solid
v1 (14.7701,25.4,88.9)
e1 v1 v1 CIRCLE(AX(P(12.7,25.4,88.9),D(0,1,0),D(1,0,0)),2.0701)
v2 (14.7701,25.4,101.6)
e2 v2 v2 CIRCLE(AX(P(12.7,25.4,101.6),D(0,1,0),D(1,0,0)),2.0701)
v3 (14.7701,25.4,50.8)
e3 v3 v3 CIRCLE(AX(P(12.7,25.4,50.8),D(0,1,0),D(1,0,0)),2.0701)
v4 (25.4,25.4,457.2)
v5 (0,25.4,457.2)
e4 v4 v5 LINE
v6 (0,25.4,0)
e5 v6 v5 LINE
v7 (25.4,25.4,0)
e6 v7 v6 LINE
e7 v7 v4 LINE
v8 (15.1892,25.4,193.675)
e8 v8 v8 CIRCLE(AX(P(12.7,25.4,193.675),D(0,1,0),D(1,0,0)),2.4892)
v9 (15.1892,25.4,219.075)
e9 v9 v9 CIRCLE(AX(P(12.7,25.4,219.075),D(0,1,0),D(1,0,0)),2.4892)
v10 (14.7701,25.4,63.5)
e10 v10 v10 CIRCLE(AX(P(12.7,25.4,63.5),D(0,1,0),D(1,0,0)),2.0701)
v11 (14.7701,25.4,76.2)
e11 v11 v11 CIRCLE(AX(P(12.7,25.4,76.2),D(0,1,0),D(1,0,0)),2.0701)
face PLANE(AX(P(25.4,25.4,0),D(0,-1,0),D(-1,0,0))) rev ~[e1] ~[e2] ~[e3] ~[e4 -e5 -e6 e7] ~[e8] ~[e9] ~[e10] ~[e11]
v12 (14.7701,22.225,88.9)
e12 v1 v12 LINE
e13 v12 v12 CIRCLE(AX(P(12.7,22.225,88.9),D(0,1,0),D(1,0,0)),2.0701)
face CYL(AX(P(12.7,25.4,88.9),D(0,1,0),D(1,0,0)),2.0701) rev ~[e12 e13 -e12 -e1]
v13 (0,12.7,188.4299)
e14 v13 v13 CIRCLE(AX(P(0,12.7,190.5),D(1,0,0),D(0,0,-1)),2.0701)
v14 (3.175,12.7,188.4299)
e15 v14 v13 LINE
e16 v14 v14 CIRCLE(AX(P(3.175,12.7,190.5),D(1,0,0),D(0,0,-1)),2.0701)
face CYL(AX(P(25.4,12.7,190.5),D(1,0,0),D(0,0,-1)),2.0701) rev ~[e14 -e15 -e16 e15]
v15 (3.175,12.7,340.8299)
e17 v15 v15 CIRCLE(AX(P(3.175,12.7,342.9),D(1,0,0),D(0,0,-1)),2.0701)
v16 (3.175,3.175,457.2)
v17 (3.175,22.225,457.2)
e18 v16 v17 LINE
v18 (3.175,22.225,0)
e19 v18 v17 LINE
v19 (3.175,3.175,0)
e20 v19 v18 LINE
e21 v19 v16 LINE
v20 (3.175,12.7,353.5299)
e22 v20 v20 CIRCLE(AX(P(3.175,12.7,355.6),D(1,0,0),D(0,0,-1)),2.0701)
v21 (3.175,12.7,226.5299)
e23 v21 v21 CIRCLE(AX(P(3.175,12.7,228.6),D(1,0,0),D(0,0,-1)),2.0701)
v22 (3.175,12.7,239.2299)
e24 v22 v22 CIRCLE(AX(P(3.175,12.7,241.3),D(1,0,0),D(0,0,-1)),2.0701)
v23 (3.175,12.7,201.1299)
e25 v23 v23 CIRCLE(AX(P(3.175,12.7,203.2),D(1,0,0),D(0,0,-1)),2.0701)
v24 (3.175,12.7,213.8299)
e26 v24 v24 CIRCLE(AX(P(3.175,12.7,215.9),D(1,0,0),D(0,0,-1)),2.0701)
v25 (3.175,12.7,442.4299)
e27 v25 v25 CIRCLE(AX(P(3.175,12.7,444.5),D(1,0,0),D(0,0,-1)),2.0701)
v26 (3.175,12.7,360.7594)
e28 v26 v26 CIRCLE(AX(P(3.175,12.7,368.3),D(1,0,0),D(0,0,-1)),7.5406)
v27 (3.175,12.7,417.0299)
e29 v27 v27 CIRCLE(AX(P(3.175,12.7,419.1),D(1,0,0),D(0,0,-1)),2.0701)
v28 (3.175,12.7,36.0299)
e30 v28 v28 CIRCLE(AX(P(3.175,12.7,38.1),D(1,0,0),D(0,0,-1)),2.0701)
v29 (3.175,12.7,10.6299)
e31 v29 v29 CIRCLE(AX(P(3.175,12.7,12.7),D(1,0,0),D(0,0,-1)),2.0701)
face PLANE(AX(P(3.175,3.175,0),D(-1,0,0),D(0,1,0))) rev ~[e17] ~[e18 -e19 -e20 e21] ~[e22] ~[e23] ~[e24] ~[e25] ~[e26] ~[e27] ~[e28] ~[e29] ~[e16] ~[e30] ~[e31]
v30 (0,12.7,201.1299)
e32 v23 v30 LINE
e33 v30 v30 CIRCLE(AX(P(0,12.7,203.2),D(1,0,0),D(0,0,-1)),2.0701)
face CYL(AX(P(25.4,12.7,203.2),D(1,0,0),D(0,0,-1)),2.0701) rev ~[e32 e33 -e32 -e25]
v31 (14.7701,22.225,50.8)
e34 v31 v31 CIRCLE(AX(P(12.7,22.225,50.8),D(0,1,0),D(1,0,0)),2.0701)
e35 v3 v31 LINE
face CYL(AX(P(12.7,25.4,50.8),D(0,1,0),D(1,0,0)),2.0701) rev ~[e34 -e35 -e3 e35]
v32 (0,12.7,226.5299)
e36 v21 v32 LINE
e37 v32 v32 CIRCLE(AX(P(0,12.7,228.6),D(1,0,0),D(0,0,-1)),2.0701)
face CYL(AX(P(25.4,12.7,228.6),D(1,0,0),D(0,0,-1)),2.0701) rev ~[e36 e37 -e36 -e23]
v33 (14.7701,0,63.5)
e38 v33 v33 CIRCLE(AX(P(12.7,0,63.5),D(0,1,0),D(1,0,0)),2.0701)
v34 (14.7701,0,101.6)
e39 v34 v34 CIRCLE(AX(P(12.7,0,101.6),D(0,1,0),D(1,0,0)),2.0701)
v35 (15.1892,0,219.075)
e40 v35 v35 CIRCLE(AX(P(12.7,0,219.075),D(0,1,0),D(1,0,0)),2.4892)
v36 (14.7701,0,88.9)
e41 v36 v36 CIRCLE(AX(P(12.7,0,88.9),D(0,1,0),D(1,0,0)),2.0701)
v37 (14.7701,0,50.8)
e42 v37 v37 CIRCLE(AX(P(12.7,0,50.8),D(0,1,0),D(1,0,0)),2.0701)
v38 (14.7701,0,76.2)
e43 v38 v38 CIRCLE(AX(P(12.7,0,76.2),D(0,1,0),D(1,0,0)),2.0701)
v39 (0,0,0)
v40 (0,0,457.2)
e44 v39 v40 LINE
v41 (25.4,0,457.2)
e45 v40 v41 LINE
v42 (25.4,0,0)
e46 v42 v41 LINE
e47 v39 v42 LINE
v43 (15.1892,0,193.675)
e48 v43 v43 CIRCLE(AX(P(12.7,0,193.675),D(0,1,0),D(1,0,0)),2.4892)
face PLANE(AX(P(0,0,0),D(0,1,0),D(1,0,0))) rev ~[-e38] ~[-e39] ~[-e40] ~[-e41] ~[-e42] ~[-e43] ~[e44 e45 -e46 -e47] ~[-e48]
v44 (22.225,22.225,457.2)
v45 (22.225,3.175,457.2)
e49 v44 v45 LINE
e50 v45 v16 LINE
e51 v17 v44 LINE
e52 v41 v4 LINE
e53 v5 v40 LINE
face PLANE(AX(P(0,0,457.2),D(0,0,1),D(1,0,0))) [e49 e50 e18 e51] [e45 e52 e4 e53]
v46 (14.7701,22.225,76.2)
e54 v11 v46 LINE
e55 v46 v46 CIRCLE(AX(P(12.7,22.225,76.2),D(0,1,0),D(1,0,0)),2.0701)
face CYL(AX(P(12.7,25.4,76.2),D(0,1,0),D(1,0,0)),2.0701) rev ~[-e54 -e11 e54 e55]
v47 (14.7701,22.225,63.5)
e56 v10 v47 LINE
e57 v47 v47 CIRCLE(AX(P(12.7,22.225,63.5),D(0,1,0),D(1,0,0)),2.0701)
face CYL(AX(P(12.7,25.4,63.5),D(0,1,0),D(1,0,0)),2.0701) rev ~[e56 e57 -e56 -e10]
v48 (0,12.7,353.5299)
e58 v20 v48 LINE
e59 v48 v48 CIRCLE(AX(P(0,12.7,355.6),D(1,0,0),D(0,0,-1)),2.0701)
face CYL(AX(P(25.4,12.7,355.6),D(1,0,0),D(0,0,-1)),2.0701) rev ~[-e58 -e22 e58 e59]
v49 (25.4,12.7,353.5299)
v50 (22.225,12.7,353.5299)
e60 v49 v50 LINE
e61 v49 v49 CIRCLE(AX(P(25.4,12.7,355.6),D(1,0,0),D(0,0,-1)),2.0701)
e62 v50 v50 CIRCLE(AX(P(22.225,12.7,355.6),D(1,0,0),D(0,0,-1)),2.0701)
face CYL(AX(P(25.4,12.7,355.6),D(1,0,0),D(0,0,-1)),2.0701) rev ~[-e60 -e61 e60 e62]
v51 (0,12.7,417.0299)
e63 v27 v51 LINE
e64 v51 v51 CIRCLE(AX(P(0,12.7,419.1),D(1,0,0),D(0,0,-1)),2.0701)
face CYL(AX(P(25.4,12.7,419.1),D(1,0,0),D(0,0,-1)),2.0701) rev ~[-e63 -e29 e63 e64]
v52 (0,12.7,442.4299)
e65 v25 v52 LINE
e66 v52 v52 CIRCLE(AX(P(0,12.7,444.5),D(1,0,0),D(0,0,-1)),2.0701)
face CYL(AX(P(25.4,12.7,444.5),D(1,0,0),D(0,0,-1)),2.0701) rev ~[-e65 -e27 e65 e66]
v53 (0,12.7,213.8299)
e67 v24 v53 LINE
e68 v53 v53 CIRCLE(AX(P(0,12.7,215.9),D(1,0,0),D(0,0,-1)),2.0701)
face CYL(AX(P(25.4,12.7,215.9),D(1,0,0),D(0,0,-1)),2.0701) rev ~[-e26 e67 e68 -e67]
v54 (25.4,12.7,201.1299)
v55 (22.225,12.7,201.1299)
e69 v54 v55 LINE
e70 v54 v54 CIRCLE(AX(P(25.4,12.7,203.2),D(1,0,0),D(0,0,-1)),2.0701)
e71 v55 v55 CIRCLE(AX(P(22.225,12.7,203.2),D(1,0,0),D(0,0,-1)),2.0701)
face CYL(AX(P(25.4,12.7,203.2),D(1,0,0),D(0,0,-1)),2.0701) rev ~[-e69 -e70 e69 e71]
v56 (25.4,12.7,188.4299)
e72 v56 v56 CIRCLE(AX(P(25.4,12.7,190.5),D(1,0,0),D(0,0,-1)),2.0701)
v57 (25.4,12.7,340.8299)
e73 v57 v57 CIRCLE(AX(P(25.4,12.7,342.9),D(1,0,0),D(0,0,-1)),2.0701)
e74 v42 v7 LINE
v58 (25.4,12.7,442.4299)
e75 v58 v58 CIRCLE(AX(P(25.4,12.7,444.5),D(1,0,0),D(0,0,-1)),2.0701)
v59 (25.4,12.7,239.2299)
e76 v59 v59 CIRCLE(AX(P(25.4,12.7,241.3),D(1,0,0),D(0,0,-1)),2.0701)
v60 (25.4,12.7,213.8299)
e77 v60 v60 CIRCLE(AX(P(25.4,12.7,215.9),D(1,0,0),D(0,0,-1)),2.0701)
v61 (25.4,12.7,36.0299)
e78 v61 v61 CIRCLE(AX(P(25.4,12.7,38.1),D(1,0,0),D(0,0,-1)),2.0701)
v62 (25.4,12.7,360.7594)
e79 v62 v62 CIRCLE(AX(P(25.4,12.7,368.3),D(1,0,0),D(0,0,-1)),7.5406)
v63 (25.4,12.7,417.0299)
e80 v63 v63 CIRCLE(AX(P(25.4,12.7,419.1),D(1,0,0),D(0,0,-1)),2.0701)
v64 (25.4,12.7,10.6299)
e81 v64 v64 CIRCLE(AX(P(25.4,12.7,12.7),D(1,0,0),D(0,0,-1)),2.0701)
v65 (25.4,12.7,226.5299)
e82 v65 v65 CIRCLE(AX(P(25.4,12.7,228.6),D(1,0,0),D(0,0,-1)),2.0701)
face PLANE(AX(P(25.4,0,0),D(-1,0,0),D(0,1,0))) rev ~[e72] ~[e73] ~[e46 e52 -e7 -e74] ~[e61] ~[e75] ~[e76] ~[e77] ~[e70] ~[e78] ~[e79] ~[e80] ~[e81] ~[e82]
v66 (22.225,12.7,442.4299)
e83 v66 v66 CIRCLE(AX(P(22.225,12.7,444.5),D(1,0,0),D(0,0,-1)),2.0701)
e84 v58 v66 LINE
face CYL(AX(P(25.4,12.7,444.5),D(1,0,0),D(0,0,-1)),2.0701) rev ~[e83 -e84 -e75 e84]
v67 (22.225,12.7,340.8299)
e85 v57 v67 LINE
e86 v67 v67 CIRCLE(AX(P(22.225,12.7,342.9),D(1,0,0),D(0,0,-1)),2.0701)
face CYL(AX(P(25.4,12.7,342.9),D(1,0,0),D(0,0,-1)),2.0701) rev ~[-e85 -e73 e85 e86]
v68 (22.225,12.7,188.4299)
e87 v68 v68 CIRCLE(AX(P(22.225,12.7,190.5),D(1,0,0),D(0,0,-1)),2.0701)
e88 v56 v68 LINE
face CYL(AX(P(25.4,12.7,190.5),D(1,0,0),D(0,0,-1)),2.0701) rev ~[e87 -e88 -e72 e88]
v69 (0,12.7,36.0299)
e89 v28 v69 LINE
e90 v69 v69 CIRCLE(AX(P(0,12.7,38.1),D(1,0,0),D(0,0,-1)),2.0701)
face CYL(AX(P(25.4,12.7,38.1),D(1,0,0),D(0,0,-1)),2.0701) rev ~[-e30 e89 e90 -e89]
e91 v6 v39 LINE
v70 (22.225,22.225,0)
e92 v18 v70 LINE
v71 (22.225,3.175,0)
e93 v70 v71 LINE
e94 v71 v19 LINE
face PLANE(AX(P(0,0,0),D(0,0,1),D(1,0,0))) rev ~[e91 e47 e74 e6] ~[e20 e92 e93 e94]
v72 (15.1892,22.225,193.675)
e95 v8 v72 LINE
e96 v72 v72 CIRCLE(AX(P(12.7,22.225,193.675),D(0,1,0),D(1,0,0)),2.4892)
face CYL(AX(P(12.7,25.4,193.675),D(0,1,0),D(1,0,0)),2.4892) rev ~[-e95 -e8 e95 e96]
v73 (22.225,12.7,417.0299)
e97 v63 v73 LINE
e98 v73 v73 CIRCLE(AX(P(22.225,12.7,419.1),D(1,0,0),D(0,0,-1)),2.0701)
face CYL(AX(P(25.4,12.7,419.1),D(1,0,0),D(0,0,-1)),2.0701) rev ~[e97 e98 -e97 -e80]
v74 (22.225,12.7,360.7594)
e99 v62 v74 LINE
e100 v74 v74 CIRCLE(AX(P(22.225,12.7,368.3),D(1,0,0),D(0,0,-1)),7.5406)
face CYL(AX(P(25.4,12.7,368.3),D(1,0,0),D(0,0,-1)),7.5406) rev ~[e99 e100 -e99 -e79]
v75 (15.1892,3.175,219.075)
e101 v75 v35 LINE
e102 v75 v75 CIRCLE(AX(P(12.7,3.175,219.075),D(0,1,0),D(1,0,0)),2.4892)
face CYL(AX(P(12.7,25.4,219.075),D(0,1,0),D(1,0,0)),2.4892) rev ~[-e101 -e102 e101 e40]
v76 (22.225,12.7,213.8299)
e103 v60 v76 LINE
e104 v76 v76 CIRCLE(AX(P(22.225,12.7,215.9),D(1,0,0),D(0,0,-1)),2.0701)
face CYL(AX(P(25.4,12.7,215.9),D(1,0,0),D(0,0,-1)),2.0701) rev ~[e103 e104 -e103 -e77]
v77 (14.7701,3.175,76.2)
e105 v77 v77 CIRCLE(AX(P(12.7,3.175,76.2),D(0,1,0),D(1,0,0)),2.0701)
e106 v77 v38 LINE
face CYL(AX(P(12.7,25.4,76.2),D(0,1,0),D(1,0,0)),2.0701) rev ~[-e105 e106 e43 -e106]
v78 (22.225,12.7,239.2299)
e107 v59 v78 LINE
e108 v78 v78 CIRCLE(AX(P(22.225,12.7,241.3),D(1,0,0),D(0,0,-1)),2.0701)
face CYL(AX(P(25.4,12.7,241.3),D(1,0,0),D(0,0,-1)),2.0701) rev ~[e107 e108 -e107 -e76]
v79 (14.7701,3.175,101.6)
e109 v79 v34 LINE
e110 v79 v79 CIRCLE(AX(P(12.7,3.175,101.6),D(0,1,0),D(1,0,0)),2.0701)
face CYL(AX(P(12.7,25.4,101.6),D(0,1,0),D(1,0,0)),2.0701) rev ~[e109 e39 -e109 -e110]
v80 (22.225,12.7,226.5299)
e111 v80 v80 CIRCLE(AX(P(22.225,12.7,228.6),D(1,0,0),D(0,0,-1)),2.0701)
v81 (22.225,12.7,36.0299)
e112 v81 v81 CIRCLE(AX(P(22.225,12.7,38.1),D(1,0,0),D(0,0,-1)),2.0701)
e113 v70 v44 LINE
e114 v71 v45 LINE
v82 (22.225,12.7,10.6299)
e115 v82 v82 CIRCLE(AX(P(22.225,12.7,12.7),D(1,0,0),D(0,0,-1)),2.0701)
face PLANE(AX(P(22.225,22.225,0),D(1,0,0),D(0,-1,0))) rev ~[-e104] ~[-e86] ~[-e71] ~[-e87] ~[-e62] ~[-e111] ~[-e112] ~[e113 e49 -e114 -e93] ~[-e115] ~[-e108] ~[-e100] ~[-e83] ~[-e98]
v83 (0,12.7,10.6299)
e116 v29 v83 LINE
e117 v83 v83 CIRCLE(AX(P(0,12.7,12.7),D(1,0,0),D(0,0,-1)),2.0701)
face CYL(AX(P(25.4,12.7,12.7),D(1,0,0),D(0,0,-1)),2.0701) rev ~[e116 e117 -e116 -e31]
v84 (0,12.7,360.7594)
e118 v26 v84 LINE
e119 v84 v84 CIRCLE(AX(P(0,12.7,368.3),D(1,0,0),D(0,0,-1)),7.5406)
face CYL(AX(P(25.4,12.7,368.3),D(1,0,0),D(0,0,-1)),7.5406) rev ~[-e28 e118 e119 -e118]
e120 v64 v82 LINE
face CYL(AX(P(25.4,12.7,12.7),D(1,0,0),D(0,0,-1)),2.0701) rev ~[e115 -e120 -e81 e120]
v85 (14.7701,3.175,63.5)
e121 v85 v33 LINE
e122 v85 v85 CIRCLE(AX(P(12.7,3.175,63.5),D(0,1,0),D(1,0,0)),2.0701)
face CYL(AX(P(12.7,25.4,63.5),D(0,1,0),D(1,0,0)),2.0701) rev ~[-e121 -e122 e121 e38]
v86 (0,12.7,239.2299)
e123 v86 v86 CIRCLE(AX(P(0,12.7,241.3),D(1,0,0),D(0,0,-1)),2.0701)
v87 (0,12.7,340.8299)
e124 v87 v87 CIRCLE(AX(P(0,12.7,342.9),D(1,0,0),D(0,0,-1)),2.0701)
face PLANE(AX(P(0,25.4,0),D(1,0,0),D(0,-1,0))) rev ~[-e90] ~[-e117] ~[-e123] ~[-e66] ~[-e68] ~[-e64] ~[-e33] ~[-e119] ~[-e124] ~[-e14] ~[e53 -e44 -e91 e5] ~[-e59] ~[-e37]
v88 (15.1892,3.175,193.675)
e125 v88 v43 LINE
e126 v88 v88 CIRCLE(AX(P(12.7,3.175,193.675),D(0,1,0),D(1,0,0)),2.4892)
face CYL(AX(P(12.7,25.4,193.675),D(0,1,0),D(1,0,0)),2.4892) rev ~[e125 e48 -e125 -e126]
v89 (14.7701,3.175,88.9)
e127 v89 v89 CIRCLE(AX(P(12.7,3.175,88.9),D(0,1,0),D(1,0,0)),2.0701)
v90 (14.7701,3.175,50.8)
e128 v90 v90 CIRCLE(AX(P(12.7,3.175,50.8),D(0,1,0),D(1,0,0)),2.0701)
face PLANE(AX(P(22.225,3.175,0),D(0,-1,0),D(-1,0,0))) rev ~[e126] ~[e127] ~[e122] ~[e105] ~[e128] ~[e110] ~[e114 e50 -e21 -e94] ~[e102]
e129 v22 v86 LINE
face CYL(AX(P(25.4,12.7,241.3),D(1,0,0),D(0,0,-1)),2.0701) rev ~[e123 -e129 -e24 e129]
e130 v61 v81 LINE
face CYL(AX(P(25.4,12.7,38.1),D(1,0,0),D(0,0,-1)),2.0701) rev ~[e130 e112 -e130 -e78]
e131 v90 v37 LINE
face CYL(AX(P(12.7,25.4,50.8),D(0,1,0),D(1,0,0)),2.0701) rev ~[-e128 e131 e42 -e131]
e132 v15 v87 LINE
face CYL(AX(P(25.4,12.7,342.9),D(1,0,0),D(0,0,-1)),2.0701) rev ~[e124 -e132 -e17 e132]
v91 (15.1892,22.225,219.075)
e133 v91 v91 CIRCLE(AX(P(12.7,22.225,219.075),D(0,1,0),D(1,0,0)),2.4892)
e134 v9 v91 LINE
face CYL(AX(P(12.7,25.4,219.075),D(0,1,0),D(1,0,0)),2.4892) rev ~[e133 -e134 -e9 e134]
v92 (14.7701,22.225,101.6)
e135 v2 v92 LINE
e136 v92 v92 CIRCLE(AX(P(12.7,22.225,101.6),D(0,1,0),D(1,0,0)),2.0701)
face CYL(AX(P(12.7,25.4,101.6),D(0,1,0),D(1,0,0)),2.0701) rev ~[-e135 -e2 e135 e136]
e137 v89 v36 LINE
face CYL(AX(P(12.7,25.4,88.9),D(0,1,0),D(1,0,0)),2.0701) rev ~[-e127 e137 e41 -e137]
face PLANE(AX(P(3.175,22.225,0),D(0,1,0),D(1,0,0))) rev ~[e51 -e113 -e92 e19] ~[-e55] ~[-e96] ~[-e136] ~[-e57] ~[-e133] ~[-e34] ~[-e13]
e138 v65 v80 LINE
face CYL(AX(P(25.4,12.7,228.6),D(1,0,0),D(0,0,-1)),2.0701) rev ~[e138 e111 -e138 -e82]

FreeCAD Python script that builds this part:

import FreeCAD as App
import Part
import Sketcher

V = App.Vector
Q = App.Units.Quantity


def add_polygon(sketch, points):
    """Adds a closed chain of lines whose ends are joined by coincident constraints."""
    first, n = sketch.GeometryCount, len(points)
    for a, b in zip(points, points[1:] + points[:1]):
        sketch.addGeometry(Part.LineSegment(App.Vector(*a, 0), App.Vector(*b, 0)), False)
    for i in range(n):
        sketch.addConstraint(Sketcher.Constraint("Coincident", first + i, 2, first + (i + 1) % n, 1))

doc = App.newDocument("Part")
body = doc.addObject("PartDesign::Body", "Body")

# Sketch on XY plane
sketch1 = body.newObject("Sketcher::SketchObject", "Sketch")
sketch1.AttachmentSupport = (doc.getObject("XY_Plane"), [""])
sketch1.MapMode = "FlatFace"
add_polygon(sketch1, [(0, 25.4), (0, 0), (25.4, 0), (25.4, 25.4)])  # lines 0-3
add_polygon(sketch1, [(3.175, 3.175), (3.175, 22.225), (22.225, 22.225), (22.225, 3.175)])  # lines 4-7
sketch1.addConstraint([
    Sketcher.Constraint("Vertical", 0),
    Sketcher.Constraint("Horizontal", 1),
    Sketcher.Constraint("Vertical", 2),
    Sketcher.Constraint("Horizontal", 3),
    Sketcher.Constraint("Vertical", 4),
    Sketcher.Constraint("Horizontal", 5),
    Sketcher.Constraint("Vertical", 6),
    Sketcher.Constraint("Horizontal", 7),
    Sketcher.Constraint("Coincident", 0, 2, -1, 1),
    Sketcher.Constraint("Equal", 3, 0),
    Sketcher.Constraint("Equal", 7, 4),
    Sketcher.Constraint("DistanceX", 1, 1, 1, 2, Q("1 in")),
    Sketcher.Constraint("DistanceX", -1, 1, 4, 2, Q("0.125 in")),
    Sketcher.Constraint("DistanceY", -1, 1, 6, 2, Q("0.125 in")),
    Sketcher.Constraint("DistanceY", 4, 2, 3, 2, Q("0.125 in")),
])
pad1 = body.newObject("PartDesign::Pad", "Pad")
pad1.Profile = sketch1
pad1.Length = Q("18 in")

# Sketch on YZ plane
sketch2 = body.newObject("Sketcher::SketchObject", "Sketch001")
sketch2.AttachmentSupport = (doc.getObject("YZ_Plane"), [""])
sketch2.MapMode = "FlatFace"
sketch2.AttachmentOffset = App.Placement(V(0, 0, 1 * 25.4), App.Rotation())
sketch2.addGeometry([
    Part.Circle(V(12.7, 444.5, 0), V(0, 0, 1), 2.0701),  # 0
    Part.Circle(V(12.7, 419.1, 0), V(0, 0, 1), 2.0701),  # 1
    Part.Circle(V(12.7, 355.6, 0), V(0, 0, 1), 2.0701),  # 2
    Part.Circle(V(12.7, 342.9, 0), V(0, 0, 1), 2.0701),  # 3
    Part.Circle(V(12.7, 368.3, 0), V(0, 0, 1), 7.5406),  # 4
    Part.Circle(V(12.7, 241.3, 0), V(0, 0, 1), 2.0701),  # 5
    Part.Circle(V(12.7, 228.6, 0), V(0, 0, 1), 2.0701),  # 6
    Part.Circle(V(12.7, 215.9, 0), V(0, 0, 1), 2.0701),  # 7
    Part.Circle(V(12.7, 203.2, 0), V(0, 0, 1), 2.0701),  # 8
    Part.Circle(V(12.7, 190.5, 0), V(0, 0, 1), 2.0701),  # 9
    Part.Circle(V(12.7, 12.7, 0), V(0, 0, 1), 2.0701),  # 10
    Part.Circle(V(12.7, 38.1, 0), V(0, 0, 1), 2.0701),  # 11
], False)
sketch2.addConstraint([
    Sketcher.Constraint("Equal", 0, 1),
    Sketcher.Constraint("Equal", 1, 2),
    Sketcher.Constraint("Equal", 2, 3),
    Sketcher.Constraint("Equal", 3, 5),
    Sketcher.Constraint("Equal", 5, 6),
    Sketcher.Constraint("Equal", 6, 7),
    Sketcher.Constraint("Equal", 7, 8),
    Sketcher.Constraint("Equal", 8, 9),
    Sketcher.Constraint("Equal", 9, 10),
    Sketcher.Constraint("Equal", 10, 11),
    Sketcher.Constraint("Vertical", 0, 3, 1, 3),
    Sketcher.Constraint("Vertical", 1, 3, 2, 3),
    Sketcher.Constraint("Vertical", 2, 3, 3, 3),
    Sketcher.Constraint("Vertical", 3, 3, 4, 3),
    Sketcher.Constraint("Vertical", 4, 3, 5, 3),
    Sketcher.Constraint("Vertical", 5, 3, 6, 3),
    Sketcher.Constraint("Vertical", 6, 3, 7, 3),
    Sketcher.Constraint("Vertical", 7, 3, 8, 3),
    Sketcher.Constraint("Vertical", 8, 3, 9, 3),
    Sketcher.Constraint("Vertical", 9, 3, 10, 3),
    Sketcher.Constraint("Vertical", 10, 3, 11, 3),
    Sketcher.Constraint("Diameter", 0, Q("0.163 in")),
    Sketcher.Constraint("Diameter", 4, Q("0.593748 in")),
    Sketcher.Constraint("DistanceY", 1, 3, 0, 3, Q("1 in")),
    Sketcher.Constraint("DistanceY", 3, 3, 0, 3, Q("4 in")),
    Sketcher.Constraint("DistanceY", 3, 3, 4, 3, Q("1 in")),
    Sketcher.Constraint("DistanceY", 5, 3, 3, 3, Q("4 in")),
    Sketcher.Constraint("DistanceY", 7, 3, 5, 3, Q("1 in")),
    Sketcher.Constraint("DistanceY", 8, 3, 6, 3, Q("1 in")),
    Sketcher.Constraint("DistanceY", 9, 3, 7, 3, Q("1 in")),
    Sketcher.Constraint("DistanceY", 10, 3, 11, 3, Q("1 in")),
    Sketcher.Constraint("DistanceX", -1, 1, 0, 3, Q("0.5 in")),
    Sketcher.Constraint("DistanceY", -1, 1, 10, 3, Q("0.5 in")),
    Sketcher.Constraint("DistanceY", 2, 3, 1, 3, Q("2.5 in")),
    Sketcher.Constraint("DistanceY", 6, 3, 5, 3, Q("0.5 in")),
    Sketcher.Constraint("DistanceY", -1, 1, 2, 3, Q("14 in")),
])
pocket1 = body.newObject("PartDesign::Pocket", "Pocket")
pocket1.Profile = sketch2
pocket1.Length = Q("18 in")

# Sketch on XZ plane
sketch3 = body.newObject("Sketcher::SketchObject", "Sketch002")
sketch3.AttachmentSupport = (doc.getObject("XZ_Plane"), [""])
sketch3.MapMode = "FlatFace"
sketch3.AttachmentOffset = App.Placement(V(0, 0, -1 * 25.4), App.Rotation())
sketch3.addGeometry([
    Part.Circle(V(12.7, 219.075, 0), V(0, 0, 1), 2.4892),  # 0
    Part.Circle(V(12.7, 193.675, 0), V(0, 0, 1), 2.4892),  # 1
    Part.Circle(V(12.7, 50.8, 0), V(0, 0, 1), 2.0701),  # 2
    Part.Circle(V(12.7, 63.5, 0), V(0, 0, 1), 2.0701),  # 3
    Part.Circle(V(12.7, 76.2, 0), V(0, 0, 1), 2.0701),  # 4
    Part.Circle(V(12.7, 88.9, 0), V(0, 0, 1), 2.0701),  # 5
    Part.Circle(V(12.7, 101.6, 0), V(0, 0, 1), 2.0701),  # 6
], False)
sketch3.addConstraint([
    Sketcher.Constraint("Equal", 0, 1),
    Sketcher.Constraint("Equal", 2, 3),
    Sketcher.Constraint("Equal", 3, 4),
    Sketcher.Constraint("Equal", 4, 5),
    Sketcher.Constraint("Equal", 5, 6),
    Sketcher.Constraint("Vertical", 0, 3, 1, 3),
    Sketcher.Constraint("Vertical", 1, 3, 2, 3),
    Sketcher.Constraint("Vertical", 2, 3, 3, 3),
    Sketcher.Constraint("Vertical", 3, 3, 4, 3),
    Sketcher.Constraint("Vertical", 4, 3, 5, 3),
    Sketcher.Constraint("Vertical", 5, 3, 6, 3),
    Sketcher.Constraint("Diameter", 0, Q("0.196 in")),
    Sketcher.Constraint("Diameter", 2, Q("0.163 in")),
    Sketcher.Constraint("DistanceY", -1, 1, 2, 3, Q("2 in")),
    Sketcher.Constraint("DistanceY", 1, 3, 0, 3, Q("1 in")),
    Sketcher.Constraint("DistanceY", 2, 3, 4, 3, Q("1 in")),
    Sketcher.Constraint("DistanceY", 3, 3, 5, 3, Q("1 in")),
    Sketcher.Constraint("DistanceY", 4, 3, 6, 3, Q("1 in")),
    Sketcher.Constraint("DistanceX", -1, 1, 0, 3, Q("0.5 in")),
    Sketcher.Constraint("DistanceY", 2, 3, 3, 3, Q("0.5 in")),
    Sketcher.Constraint("DistanceY", -1, 1, 0, 3, Q("8.625 in")),
])
pocket2 = body.newObject("PartDesign::Pocket", "Pocket001")
pocket2.Profile = sketch3
pocket2.Length = Q("18 in")
pocket2.Reversed = True

doc.recompute()
